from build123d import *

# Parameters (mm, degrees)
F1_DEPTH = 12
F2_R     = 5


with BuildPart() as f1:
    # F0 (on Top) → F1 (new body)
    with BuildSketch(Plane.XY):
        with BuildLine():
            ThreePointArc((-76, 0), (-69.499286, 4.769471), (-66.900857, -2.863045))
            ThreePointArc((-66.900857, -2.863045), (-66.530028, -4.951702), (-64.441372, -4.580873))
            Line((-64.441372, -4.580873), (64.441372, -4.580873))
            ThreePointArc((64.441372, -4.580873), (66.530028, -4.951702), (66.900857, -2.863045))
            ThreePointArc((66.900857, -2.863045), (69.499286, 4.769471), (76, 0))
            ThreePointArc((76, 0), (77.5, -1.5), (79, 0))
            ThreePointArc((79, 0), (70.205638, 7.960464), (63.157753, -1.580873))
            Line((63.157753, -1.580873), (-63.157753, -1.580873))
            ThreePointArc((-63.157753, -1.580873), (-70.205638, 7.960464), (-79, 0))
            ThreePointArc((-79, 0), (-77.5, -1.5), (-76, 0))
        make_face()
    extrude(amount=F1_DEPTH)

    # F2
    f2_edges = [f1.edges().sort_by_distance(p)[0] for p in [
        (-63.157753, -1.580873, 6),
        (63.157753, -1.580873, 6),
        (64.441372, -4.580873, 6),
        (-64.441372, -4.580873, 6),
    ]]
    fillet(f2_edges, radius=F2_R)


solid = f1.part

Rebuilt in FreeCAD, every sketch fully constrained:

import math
import FreeCAD as App
import Part
import Sketcher

V = App.Vector
Q = App.Units.Quantity


def edges_at(feature, points):
    """Names of the edges that pass closest to the given points."""
    edges = feature.Shape.Edges
    near = lambda p: min(range(len(edges)), key=lambda i: edges[i].distToShape(Part.Vertex(*p))[0])
    return sorted({f"Edge{near(p) + 1}" for p in points})

doc = App.newDocument("Part")
params = doc.addObject("Spreadsheet::Sheet", "Params")
for row, (alias, value) in enumerate([
    ("sketch1_radius", "5 mm"),
    ("sketch1_radius2", "8 mm"),
    ("pad1_length", "12 mm"),
    ("fillet_radius", "5 mm"),
], start=1):
    params.set(f"A{row}", alias)
    params.set(f"B{row}", "=" + value)
    params.setAlias(f"B{row}", alias)

body = doc.addObject("PartDesign::Body", "Body")

sketch1 = body.newObject("Sketcher::SketchObject", "Sketch")
sketch1.AttachmentSupport = (doc.getObject("XY_Plane"), [""])
sketch1.MapMode = "FlatFace"
sketch1.addGeometry(Part.ArcOfCircle(Part.Circle(V(-71, 0, 0), V(0, 0, 1), 5), math.radians(-35), math.radians(180)), False)
sketch1.addGeometry(Part.ArcOfCircle(Part.Circle(V(-65.7, -3.7, 0), V(0, 0, 1), 1.5), math.radians(145), math.radians(325)), False)
sketch1.addGeometry(Part.LineSegment(V(-64.4, -4.6, 0), V(64.4, -4.6, 0)), False)
sketch1.addGeometry(Part.ArcOfCircle(Part.Circle(V(65.7, -3.7, 0), V(0, 0, 1), 1.5), math.radians(-145), math.radians(35)), False)
sketch1.addGeometry(Part.ArcOfCircle(Part.Circle(V(71, 0, 0), V(0, 0, 1), 5), math.radians(0), math.radians(215)), False)
sketch1.addGeometry(Part.ArcOfCircle(Part.Circle(V(77.5, 0, 0), V(0, 0, 1), 1.5), math.radians(180), math.radians(360)), False)
sketch1.addGeometry(Part.ArcOfCircle(Part.Circle(V(71, 0, 0), V(0, 0, 1), 8), math.radians(0), math.radians(191)), False)
sketch1.addGeometry(Part.LineSegment(V(63.2, -1.6, 0), V(-63.2, -1.6, 0)), False)
sketch1.addGeometry(Part.ArcOfCircle(Part.Circle(V(-71, 0, 0), V(0, 0, 1), 8), math.radians(-11), math.radians(180)), False)
sketch1.addGeometry(Part.ArcOfCircle(Part.Circle(V(-77.5, 0, 0), V(0, 0, 1), 1.5), math.radians(180), math.radians(360)), False)
sketch1.addConstraint(Sketcher.Constraint("Tangent", 0, 1, 1, 1))
sketch1.addConstraint(Sketcher.Constraint("Coincident", 1, 2, 2, 1))
sketch1.addConstraint(Sketcher.Constraint("Coincident", 2, 2, 3, 1))
sketch1.addConstraint(Sketcher.Constraint("Tangent", 3, 2, 4, 2))
sketch1.addConstraint(Sketcher.Constraint("Tangent", 4, 1, 5, 1))
sketch1.addConstraint(Sketcher.Constraint("Tangent", 5, 2, 6, 1))
sketch1.addConstraint(Sketcher.Constraint("Coincident", 6, 2, 7, 1))
sketch1.addConstraint(Sketcher.Constraint("Coincident", 7, 2, 8, 1))
sketch1.addConstraint(Sketcher.Constraint("Tangent", 8, 2, 9, 1))
sketch1.addConstraint(Sketcher.Constraint("Tangent", 9, 2, 0, 2))
sketch1.addConstraint(Sketcher.Constraint("Horizontal", 2))
sketch1.addConstraint(Sketcher.Constraint("Horizontal", 7))
sketch1.addConstraint(Sketcher.Constraint("Coincident", 6, 3, 4, 3))
sketch1.addConstraint(Sketcher.Constraint("Coincident", 8, 3, 0, 3))
sketch1.addConstraint(Sketcher.Constraint("Equal", 1, 3))
sketch1.addConstraint(Sketcher.Constraint("Equal", 0, 4))
sketch1.addConstraint(Sketcher.Constraint("Equal", 3, 5))
sketch1.addConstraint(Sketcher.Constraint("Equal", 6, 8))
sketch1.addConstraint(Sketcher.Constraint("Symmetric", 0, 3, 4, 3, -1, 1))
sketch1.addConstraint(Sketcher.Constraint("Symmetric", 1, 3, 3, 3, -2))
sketch1.addConstraint(Sketcher.Constraint("PointOnObject", 5, 3, -1))
sketch1.addConstraint(Sketcher.Constraint("PointOnObject", 9, 3, -1))
sketch1.addConstraint(Sketcher.Constraint("Radius", 0, Q("5 mm")))
sketch1.addConstraint(Sketcher.Constraint("Radius", 6, Q("8 mm")))
sketch1.addConstraint(Sketcher.Constraint("DistanceX", 0, 3, -1, 1, Q("71 mm")))
sketch1.addConstraint(Sketcher.Constraint("DistanceY", 2, 2, 6, 2, Q("3 mm")))
sketch1.addConstraint(Sketcher.Constraint("DistanceX", 2, 1, 2, 2, Q("128.882744 mm")))
sketch1.addConstraint(Sketcher.Constraint("DistanceY", 1, 3, -1, 1, Q("3.721959 mm")))
sketch1.setExpression("Constraints[22]", "Params.sketch1_radius")
sketch1.setExpression("Constraints[23]", "Params.sketch1_radius2")
pad1 = body.newObject("PartDesign::Pad", "Pad")
pad1.Profile = sketch1
pad1.setExpression("Length", "Params.pad1_length")
doc.recompute()

fillet = body.newObject("PartDesign::Fillet", "Fillet")
fillet.Base = (pad1, edges_at(pad1, [
    (-63.158, -1.581, 6),
    (63.158, -1.581, 6),
    (64.441, -4.581, 6),
    (-64.441, -4.581, 6),
]))
fillet.setExpression("Radius", "Params.fillet_radius")

doc.recompute()
